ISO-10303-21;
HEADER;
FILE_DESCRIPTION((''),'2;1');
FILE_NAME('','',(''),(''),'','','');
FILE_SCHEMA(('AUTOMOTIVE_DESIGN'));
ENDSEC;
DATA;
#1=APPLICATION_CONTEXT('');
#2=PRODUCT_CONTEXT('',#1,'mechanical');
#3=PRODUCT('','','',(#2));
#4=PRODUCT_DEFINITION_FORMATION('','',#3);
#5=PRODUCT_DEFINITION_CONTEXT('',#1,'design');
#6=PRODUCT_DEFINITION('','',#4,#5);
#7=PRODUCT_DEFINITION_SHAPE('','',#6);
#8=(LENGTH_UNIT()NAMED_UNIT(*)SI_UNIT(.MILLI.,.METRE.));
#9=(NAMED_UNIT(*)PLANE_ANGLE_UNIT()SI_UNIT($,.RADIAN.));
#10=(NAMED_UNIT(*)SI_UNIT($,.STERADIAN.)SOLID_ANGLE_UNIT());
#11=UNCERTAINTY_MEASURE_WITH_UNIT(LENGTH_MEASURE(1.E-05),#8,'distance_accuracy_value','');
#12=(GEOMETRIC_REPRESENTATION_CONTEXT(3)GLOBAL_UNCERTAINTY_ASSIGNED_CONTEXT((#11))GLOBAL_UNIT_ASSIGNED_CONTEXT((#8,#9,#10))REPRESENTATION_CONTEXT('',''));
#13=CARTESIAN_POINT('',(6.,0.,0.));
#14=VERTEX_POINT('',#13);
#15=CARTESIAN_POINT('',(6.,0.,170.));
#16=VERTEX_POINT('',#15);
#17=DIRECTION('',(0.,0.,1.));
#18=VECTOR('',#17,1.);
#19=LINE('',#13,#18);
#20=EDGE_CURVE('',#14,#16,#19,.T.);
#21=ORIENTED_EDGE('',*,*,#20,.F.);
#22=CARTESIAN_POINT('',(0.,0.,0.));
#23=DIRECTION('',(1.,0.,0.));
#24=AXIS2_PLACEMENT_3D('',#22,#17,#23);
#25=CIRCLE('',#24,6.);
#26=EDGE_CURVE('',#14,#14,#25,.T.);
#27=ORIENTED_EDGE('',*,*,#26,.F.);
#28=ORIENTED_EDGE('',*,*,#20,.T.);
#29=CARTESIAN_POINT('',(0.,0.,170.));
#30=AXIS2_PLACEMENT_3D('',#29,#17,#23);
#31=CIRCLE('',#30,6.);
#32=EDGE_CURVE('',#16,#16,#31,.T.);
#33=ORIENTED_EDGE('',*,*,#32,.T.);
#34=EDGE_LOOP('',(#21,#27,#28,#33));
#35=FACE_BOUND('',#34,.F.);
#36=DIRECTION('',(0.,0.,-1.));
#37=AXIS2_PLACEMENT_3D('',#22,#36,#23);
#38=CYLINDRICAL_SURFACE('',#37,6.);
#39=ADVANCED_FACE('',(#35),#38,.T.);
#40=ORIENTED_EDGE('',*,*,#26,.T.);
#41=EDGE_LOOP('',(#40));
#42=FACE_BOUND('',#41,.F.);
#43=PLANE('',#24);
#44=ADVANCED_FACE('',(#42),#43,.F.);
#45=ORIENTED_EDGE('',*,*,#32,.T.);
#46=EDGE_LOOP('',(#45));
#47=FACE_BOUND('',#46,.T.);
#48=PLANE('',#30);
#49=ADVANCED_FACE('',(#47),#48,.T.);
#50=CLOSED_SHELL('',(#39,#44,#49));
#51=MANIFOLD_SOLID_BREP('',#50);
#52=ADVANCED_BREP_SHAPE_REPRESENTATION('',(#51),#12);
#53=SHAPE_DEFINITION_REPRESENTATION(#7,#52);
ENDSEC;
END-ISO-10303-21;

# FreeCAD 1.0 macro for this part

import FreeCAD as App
import Part
import Sketcher

V = App.Vector

doc = App.newDocument("Part")
params = doc.addObject("Spreadsheet::Sheet", "Params")
for row, (alias, value) in enumerate([
    ("sketch1_diameter", "12 mm"),
    ("pad1_length", "170 mm"),
], start=1):
    params.set(f"A{row}", alias)
    params.set(f"B{row}", "=" + value)
    params.setAlias(f"B{row}", alias)

body = doc.addObject("PartDesign::Body", "Body")

# Sketch on XY plane
sketch1 = doc.addObject("Sketcher::SketchObject", "Sketch")
body.addObject(sketch1)
sketch1.AttachmentSupport = (doc.XY_Plane, [""])
sketch1.MapMode = "FlatFace"
sketch1.addGeometry(Part.Circle(V(0, 0, 0), V(0, 0, 1), 6), False)
sketch1.addConstraint([
    Sketcher.Constraint("Coincident", 0, 3, -1, 1),
    Sketcher.Constraint("Diameter", 0, 12.0),
])
sketch1.setExpression("Constraints[1]", "Params.sketch1_diameter")
pad1 = doc.addObject("PartDesign::Pad", "Pad")
body.addObject(pad1)
pad1.Profile = sketch1
pad1.setExpression("Length", "Params.pad1_length")

doc.recompute()
